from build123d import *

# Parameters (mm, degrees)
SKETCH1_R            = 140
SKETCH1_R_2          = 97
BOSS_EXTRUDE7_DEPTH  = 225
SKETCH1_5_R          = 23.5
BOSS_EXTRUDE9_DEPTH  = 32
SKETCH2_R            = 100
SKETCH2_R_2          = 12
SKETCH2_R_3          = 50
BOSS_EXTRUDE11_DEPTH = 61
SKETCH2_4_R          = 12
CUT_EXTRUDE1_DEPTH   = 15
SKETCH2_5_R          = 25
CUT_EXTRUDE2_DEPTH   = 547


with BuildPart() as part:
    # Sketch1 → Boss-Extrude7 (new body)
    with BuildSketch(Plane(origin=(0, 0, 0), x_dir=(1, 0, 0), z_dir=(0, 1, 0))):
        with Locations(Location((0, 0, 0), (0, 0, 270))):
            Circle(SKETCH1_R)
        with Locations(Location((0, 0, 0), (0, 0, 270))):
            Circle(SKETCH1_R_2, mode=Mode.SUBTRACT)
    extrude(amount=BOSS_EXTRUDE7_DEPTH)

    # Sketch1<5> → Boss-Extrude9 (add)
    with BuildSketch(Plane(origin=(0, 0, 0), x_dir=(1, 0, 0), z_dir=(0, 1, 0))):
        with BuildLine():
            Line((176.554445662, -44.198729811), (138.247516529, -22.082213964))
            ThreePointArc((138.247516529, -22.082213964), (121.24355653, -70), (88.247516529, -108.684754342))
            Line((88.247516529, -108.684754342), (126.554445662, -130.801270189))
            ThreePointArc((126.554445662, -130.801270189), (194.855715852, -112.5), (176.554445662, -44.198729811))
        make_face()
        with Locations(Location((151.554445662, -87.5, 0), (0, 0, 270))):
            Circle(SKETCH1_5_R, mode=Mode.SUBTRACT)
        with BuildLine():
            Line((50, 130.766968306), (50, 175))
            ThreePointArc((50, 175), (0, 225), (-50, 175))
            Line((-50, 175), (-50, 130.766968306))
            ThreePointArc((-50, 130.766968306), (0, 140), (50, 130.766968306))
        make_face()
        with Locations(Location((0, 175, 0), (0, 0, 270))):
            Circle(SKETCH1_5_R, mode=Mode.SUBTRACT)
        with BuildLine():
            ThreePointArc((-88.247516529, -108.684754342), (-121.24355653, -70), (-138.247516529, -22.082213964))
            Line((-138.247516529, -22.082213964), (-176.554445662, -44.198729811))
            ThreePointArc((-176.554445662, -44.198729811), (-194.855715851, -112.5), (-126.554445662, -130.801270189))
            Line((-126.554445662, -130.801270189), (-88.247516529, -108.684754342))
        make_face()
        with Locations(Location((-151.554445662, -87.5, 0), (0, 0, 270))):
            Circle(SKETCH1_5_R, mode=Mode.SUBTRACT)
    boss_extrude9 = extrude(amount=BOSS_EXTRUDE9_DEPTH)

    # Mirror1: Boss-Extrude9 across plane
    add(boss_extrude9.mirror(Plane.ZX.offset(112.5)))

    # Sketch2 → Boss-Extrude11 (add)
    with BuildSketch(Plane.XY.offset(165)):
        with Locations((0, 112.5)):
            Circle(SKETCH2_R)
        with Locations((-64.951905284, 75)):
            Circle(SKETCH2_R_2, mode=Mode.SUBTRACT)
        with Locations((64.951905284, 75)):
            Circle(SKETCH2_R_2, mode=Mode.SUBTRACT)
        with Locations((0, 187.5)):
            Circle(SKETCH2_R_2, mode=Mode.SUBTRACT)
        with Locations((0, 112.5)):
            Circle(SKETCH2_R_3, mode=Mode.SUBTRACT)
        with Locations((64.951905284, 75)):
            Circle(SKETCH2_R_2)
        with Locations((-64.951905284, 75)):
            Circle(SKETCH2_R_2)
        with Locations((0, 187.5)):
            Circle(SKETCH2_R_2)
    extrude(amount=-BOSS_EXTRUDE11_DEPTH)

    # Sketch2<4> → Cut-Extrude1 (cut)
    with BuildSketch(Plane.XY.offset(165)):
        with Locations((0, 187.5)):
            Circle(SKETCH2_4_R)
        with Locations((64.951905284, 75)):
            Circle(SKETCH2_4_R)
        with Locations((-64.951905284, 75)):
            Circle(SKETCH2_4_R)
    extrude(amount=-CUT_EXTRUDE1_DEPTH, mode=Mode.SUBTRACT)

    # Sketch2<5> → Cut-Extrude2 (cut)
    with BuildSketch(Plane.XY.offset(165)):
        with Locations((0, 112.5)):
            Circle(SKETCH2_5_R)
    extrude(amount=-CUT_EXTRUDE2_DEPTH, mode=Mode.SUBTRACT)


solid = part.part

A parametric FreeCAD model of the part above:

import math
import FreeCAD as App
import Part
import Sketcher
from FreeCAD import Vector
Q = App.Units.Quantity

doc = App.newDocument("Part")
body = doc.addObject("PartDesign::Body", "Body")

sketch1 = doc.addObject("Sketcher::SketchObject", "Sketch")
body.addObject(sketch1)
sketch1.AttachmentSupport = (doc.XZ_Plane, [""])
sketch1.MapMode = "FlatFace"
sketch1.addGeometry(Part.Circle(Vector(0, 0, 0), Vector(0, 0, 1), 140), False)
sketch1.addGeometry(Part.Circle(Vector(0, 0, 0), Vector(0, 0, 1), 97), False)
sketch1.addConstraint(Sketcher.Constraint("Coincident", 0, 3, -1, 1))
sketch1.addConstraint(Sketcher.Constraint("Coincident", 1, 3, -1, 1))
sketch1.addConstraint(Sketcher.Constraint("Diameter", 0, Q("280 mm")))
sketch1.addConstraint(Sketcher.Constraint("Diameter", 1, Q("194 mm")))
pad1 = doc.addObject("PartDesign::Pad", "Pad")
body.addObject(pad1)
pad1.Profile = sketch1
pad1.Length = 225
pad1.Reversed = True

sketch2 = doc.addObject("Sketcher::SketchObject", "Sketch001")
body.addObject(sketch2)
sketch2.AttachmentSupport = (doc.XZ_Plane, [""])
sketch2.MapMode = "FlatFace"
sketch2.addGeometry(Part.LineSegment(Vector(177, 44, 0), Vector(138, 22, 0)), False)
sketch2.addGeometry(Part.ArcOfCircle(Part.Circle(Vector(0, 0, 0), Vector(0, 0, 1), 140), math.radians(9), math.radians(51)), False)
sketch2.addGeometry(Part.LineSegment(Vector(88, 109, 0), Vector(127, 131, 0)), False)
sketch2.addGeometry(Part.ArcOfCircle(Part.Circle(Vector(152, 88, 0), Vector(0, 0, 1), 50), math.radians(-60), math.radians(120)), False)
sketch2.addGeometry(Part.Circle(Vector(152, 88, 0), Vector(0, 0, 1), 24), False)
sketch2.addGeometry(Part.LineSegment(Vector(50, -131, 0), Vector(50, -175, 0)), False)
sketch2.addGeometry(Part.ArcOfCircle(Part.Circle(Vector(0, -175, 0), Vector(0, 0, 1), 50), math.radians(180), math.radians(360)), False)
sketch2.addGeometry(Part.LineSegment(Vector(-50, -175, 0), Vector(-50, -131, 0)), False)
sketch2.addGeometry(Part.ArcOfCircle(Part.Circle(Vector(0, 0, 0), Vector(0, 0, 1), 140), math.radians(-111), math.radians(-69)), False)
sketch2.addGeometry(Part.Circle(Vector(0, -175, 0), Vector(0, 0, 1), 24), False)
sketch2.addGeometry(Part.ArcOfCircle(Part.Circle(Vector(0, 0, 0), Vector(0, 0, 1), 140), math.radians(129), math.radians(171)), False)
sketch2.addGeometry(Part.LineSegment(Vector(-138, 22, 0), Vector(-177, 44, 0)), False)
sketch2.addGeometry(Part.ArcOfCircle(Part.Circle(Vector(-152, 88, 0), Vector(0, 0, 1), 50), math.radians(60), math.radians(240)), False)
sketch2.addGeometry(Part.LineSegment(Vector(-127, 131, 0), Vector(-88, 109, 0)), False)
sketch2.addGeometry(Part.Circle(Vector(-152, 88, 0), Vector(0, 0, 1), 24), False)
sketch2.addConstraint(Sketcher.Constraint("Coincident", 0, 2, 1, 1))
sketch2.addConstraint(Sketcher.Constraint("Coincident", 1, 2, 2, 1))
sketch2.addConstraint(Sketcher.Constraint("Tangent", 2, 2, 3, 2))
sketch2.addConstraint(Sketcher.Constraint("Tangent", 3, 1, 0, 1))
sketch2.addConstraint(Sketcher.Constraint("Tangent", 5, 2, 6, 2))
sketch2.addConstraint(Sketcher.Constraint("Tangent", 6, 1, 7, 1))
sketch2.addConstraint(Sketcher.Constraint("Coincident", 7, 2, 8, 1))
sketch2.addConstraint(Sketcher.Constraint("Coincident", 8, 2, 5, 1))
sketch2.addConstraint(Sketcher.Constraint("Coincident", 10, 2, 11, 1))
sketch2.addConstraint(Sketcher.Constraint("Tangent", 11, 2, 12, 2))
sketch2.addConstraint(Sketcher.Constraint("Tangent", 12, 1, 13, 1))
sketch2.addConstraint(Sketcher.Constraint("Coincident", 13, 2, 10, 1))
sketch2.addConstraint(Sketcher.Constraint("Vertical", 5))
sketch2.addConstraint(Sketcher.Constraint("Vertical", 7))
sketch2.addConstraint(Sketcher.Constraint("Coincident", 1, 3, -1, 1))
sketch2.addConstraint(Sketcher.Constraint("Coincident", 8, 3, -1, 1))
sketch2.addConstraint(Sketcher.Constraint("Coincident", 10, 3, -1, 1))
sketch2.addConstraint(Sketcher.Constraint("Coincident", 4, 3, 3, 3))
sketch2.addConstraint(Sketcher.Constraint("Coincident", 9, 3, 6, 3))
sketch2.addConstraint(Sketcher.Constraint("Coincident", 14, 3, 12, 3))
sketch2.addConstraint(Sketcher.Constraint("Equal", 3, 6))
sketch2.addConstraint(Sketcher.Constraint("Equal", 1, 8))
sketch2.addConstraint(Sketcher.Constraint("Equal", 4, 9))
sketch2.addConstraint(Sketcher.Constraint("Equal", 8, 10))
sketch2.addConstraint(Sketcher.Constraint("Equal", 6, 12))
sketch2.addConstraint(Sketcher.Constraint("Equal", 9, 14))
sketch2.addConstraint(Sketcher.Constraint("Symmetric", 3, 3, 12, 3, -2))
sketch2.addConstraint(Sketcher.Constraint("PointOnObject", 6, 3, -2))
sketch2.addConstraint(Sketcher.Constraint("Parallel", 0, 2))
sketch2.addConstraint(Sketcher.Constraint("Parallel", 11, 13))
sketch2.addConstraint(Sketcher.Constraint("Horizontal", 0, 2, 10, 2))
sketch2.addConstraint(Sketcher.Constraint("Equal", 0, 2))
sketch2.addConstraint(Sketcher.Constraint("Diameter", 4, Q("47 mm")))
sketch2.addConstraint(Sketcher.Constraint("Radius", 1, Q("140 mm")))
sketch2.addConstraint(Sketcher.Constraint("Radius", 3, Q("50 mm")))
sketch2.addConstraint(Sketcher.Constraint("Angle", 0, Q("-150 deg")))
sketch2.addConstraint(Sketcher.Constraint("DistanceY", 6, 3, -1, 1, Q("175 mm")))
sketch2.addConstraint(Sketcher.Constraint("DistanceY", -1, 1, 3, 3, Q("87.5 mm")))
pad2 = doc.addObject("PartDesign::Pad", "Pad001")
body.addObject(pad2)
pad2.Profile = sketch2
pad2.Length = 32
pad2.Reversed = True
doc.recompute()

datumplane = doc.addObject("PartDesign::Plane", "DatumPlane")
body.addObject(datumplane)
datumplane.AttachmentSupport = (doc.XZ_Plane, [""])
datumplane.MapMode = "FlatFace"
datumplane.AttachmentOffset = App.Placement(Vector(0, 0, -112.5), App.Rotation())
mirrored = doc.addObject("PartDesign::Mirrored", "Mirrored")
body.addObject(mirrored)
mirrored.Originals = [pad2]
mirrored.MirrorPlane = (datumplane, [""])
body.Tip = mirrored

sketch3 = doc.addObject("Sketcher::SketchObject", "Sketch002")
body.addObject(sketch3)
sketch3.AttachmentSupport = (doc.XY_Plane, [""])
sketch3.MapMode = "FlatFace"
sketch3.AttachmentOffset = App.Placement(Vector(0, 0, 165), App.Rotation())
sketch3.addGeometry(Part.Circle(Vector(0, 112, 0), Vector(0, 0, 1), 100), False)
sketch3.addGeometry(Part.Circle(Vector(0, 112, 0), Vector(0, 0, 1), 50), False)
sketch3.addConstraint(Sketcher.Constraint("Coincident", 1, 3, 0, 3))
sketch3.addConstraint(Sketcher.Constraint("PointOnObject", 0, 3, -2))
sketch3.addConstraint(Sketcher.Constraint("Diameter", 0, Q("200 mm")))
sketch3.addConstraint(Sketcher.Constraint("Diameter", 1, Q("100 mm")))
sketch3.addConstraint(Sketcher.Constraint("DistanceY", -1, 1, 0, 3, Q("112.5 mm")))
pad3 = doc.addObject("PartDesign::Pad", "Pad002")
body.addObject(pad3)
pad3.Profile = sketch3
pad3.Length = 61
pad3.Reversed = True

sketch4 = doc.addObject("Sketcher::SketchObject", "Sketch003")
body.addObject(sketch4)
sketch4.AttachmentSupport = (doc.XY_Plane, [""])
sketch4.MapMode = "FlatFace"
sketch4.AttachmentOffset = App.Placement(Vector(0, 0, 165), App.Rotation())
sketch4.addGeometry(Part.Circle(Vector(0, 188, 0), Vector(0, 0, 1), 12), False)
sketch4.addGeometry(Part.Circle(Vector(65, 75, 0), Vector(0, 0, 1), 12), False)
sketch4.addGeometry(Part.Circle(Vector(-65, 75, 0), Vector(0, 0, 1), 12), False)
sketch4.addConstraint(Sketcher.Constraint("Equal", 0, 1))
sketch4.addConstraint(Sketcher.Constraint("Equal", 1, 2))
sketch4.addConstraint(Sketcher.Constraint("Symmetric", 1, 3, 2, 3, -2))
sketch4.addConstraint(Sketcher.Constraint("PointOnObject", 0, 3, -2))
sketch4.addConstraint(Sketcher.Constraint("Diameter", 0, Q("24 mm")))
sketch4.addConstraint(Sketcher.Constraint("DistanceY", -1, 1, 1, 3, Q("75 mm")))
sketch4.addConstraint(Sketcher.Constraint("DistanceY", -1, 1, 0, 3, Q("187.5 mm")))
sketch4.addConstraint(Sketcher.Constraint("DistanceX", 2, 3, 1, 3, Q("129.903811 mm")))
pocket1 = doc.addObject("PartDesign::Pocket", "Pocket")
body.addObject(pocket1)
pocket1.Profile = sketch4
pocket1.Length = 15

sketch5 = doc.addObject("Sketcher::SketchObject", "Sketch004")
body.addObject(sketch5)
sketch5.AttachmentSupport = (doc.XY_Plane, [""])
sketch5.MapMode = "FlatFace"
sketch5.AttachmentOffset = App.Placement(Vector(0, 0, 165), App.Rotation())
sketch5.addGeometry(Part.Circle(Vector(0, 112, 0), Vector(0, 0, 1), 25), False)
sketch5.addConstraint(Sketcher.Constraint("PointOnObject", 0, 3, -2))
sketch5.addConstraint(Sketcher.Constraint("Diameter", 0, Q("50 mm")))
sketch5.addConstraint(Sketcher.Constraint("DistanceY", -1, 1, 0, 3, Q("112.5 mm")))
pocket2 = doc.addObject("PartDesign::Pocket", "Pocket001")
body.addObject(pocket2)
pocket2.Profile = sketch5
pocket2.Length = 547

doc.recompute()
